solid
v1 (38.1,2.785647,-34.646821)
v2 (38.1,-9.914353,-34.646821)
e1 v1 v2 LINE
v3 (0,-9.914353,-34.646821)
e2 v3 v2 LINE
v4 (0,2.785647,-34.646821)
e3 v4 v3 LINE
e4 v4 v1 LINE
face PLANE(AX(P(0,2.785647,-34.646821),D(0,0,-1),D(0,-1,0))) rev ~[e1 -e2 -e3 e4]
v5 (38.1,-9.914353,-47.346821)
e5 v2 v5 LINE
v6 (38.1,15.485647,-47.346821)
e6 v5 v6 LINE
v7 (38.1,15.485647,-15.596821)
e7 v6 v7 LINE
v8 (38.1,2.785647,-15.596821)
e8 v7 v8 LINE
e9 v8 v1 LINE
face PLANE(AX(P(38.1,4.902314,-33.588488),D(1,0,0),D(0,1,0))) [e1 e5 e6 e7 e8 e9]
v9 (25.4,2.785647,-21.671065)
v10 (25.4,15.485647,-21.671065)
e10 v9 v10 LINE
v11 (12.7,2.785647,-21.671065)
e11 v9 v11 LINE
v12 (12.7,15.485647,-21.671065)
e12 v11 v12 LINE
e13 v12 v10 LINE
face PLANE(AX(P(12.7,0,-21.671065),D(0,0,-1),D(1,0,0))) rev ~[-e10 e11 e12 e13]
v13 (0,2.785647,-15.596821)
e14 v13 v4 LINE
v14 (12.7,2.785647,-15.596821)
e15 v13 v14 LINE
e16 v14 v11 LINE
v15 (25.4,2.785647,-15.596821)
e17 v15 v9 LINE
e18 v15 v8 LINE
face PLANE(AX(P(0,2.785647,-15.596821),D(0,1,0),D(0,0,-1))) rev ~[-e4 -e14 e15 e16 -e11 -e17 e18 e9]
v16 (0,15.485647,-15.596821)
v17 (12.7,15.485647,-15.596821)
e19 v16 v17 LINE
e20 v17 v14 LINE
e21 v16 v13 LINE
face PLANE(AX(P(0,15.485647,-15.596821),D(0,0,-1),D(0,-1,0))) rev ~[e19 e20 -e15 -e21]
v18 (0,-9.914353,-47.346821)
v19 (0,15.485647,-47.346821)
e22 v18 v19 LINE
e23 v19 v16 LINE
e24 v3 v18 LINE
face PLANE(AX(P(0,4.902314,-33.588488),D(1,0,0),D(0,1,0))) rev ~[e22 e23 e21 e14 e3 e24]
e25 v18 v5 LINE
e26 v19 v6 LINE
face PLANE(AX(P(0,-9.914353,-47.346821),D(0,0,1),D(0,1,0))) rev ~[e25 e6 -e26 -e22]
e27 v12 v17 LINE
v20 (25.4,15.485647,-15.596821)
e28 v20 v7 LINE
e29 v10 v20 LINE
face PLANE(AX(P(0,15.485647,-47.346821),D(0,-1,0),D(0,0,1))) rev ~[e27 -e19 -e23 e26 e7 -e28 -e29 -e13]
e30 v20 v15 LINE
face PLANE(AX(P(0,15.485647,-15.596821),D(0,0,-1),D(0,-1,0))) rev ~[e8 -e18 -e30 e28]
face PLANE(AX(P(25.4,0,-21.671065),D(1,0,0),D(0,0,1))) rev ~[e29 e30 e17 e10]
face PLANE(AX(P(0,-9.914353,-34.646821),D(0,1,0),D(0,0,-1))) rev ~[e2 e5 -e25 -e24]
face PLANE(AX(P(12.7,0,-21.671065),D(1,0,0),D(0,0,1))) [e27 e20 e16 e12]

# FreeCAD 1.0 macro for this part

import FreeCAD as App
import Part
import Sketcher

V = App.Vector
Q = App.Units.Quantity


def add_polygon(sketch, points):
    """Adds a closed chain of lines whose ends are joined by coincident constraints."""
    first, n = sketch.GeometryCount, len(points)
    for a, b in zip(points, points[1:] + points[:1]):
        sketch.addGeometry(Part.LineSegment(App.Vector(*a, 0), App.Vector(*b, 0)), False)
    for i in range(n):
        sketch.addConstraint(Sketcher.Constraint("Coincident", first + i, 2, first + (i + 1) % n, 1))

doc = App.newDocument("Part")
params = doc.addObject("Spreadsheet::Sheet", "Params")
for row, (alias, value) in enumerate([
    ("sketch1_width", "1 in"),
    ("sketch1_height", "1.25 in"),
    ("pad1_length", "1.5 in"),
    ("sketch2_width", "0.5 in"),
    ("sketch2_height", "0.25 in"),
], start=1):
    params.set(f"A{row}", alias)
    params.set(f"B{row}", "=" + value)
    params.setAlias(f"B{row}", alias)

body = doc.addObject("PartDesign::Body", "Body")

# Sketch on YZ plane
sketch1 = body.newObject("Sketcher::SketchObject", "Sketch")
sketch1.AttachmentSupport = (doc.getObject("YZ_Plane"), [""])
sketch1.MapMode = "FlatFace"
add_polygon(sketch1, [(15, -47), (15, -16), (3, -16), (3, -35), (-10, -35), (-10, -47)])  # lines 0-5
sketch1.addConstraint([
    Sketcher.Constraint("Vertical", 0),
    Sketcher.Constraint("Horizontal", 1),
    Sketcher.Constraint("Vertical", 2),
    Sketcher.Constraint("Horizontal", 3),
    Sketcher.Constraint("Vertical", 4),
    Sketcher.Constraint("Horizontal", 5),
    Sketcher.Constraint("Equal", 1, 3),
    Sketcher.Constraint("Equal", 3, 4),
    Sketcher.Constraint("DistanceX", 5, 1, 5, 2, Q("1 in")),
    Sketcher.Constraint("DistanceY", 0, 1, 0, 2, Q("1.25 in")),
    Sketcher.Constraint("DistanceY", 0, 2, -1, 1, Q("15.596821 mm")),
    Sketcher.Constraint("DistanceX", -1, 1, 0, 2, Q("15.485647 mm")),
])
sketch1.setExpression("Constraints[14]", "Params.sketch1_width")
sketch1.setExpression("Constraints[15]", "Params.sketch1_height")
pad1 = body.newObject("PartDesign::Pad", "Pad")
pad1.Profile = sketch1
pad1.setExpression("Length", "Params.pad1_length")

# Sketch on XZ plane
sketch2 = body.newObject("Sketcher::SketchObject", "Sketch001")
sketch2.AttachmentSupport = (doc.getObject("XZ_Plane"), [""])
sketch2.MapMode = "FlatFace"
add_polygon(sketch2, [(13, -15), (13, -22), (25, -22), (25, -15)])  # lines 0-3
sketch2.addConstraint([
    Sketcher.Constraint("Vertical", 0),
    Sketcher.Constraint("Horizontal", 1),
    Sketcher.Constraint("Vertical", 2),
    Sketcher.Constraint("Horizontal", 3),
    Sketcher.Constraint("DistanceX", 1, 1, 1, 2, Q("0.5 in")),
    Sketcher.Constraint("DistanceX", -1, 1, 1, 2, Q("1 in")),
    Sketcher.Constraint("DistanceY", 0, 2, 0, 1, Q("0.25 in")),
    Sketcher.Constraint("DistanceY", 0, 2, -1, 1, Q("21.671065 mm")),
])
sketch2.setExpression("Constraints[8]", "Params.sketch2_width")
sketch2.setExpression("Constraints[10]", "Params.sketch2_height")
pocket1 = body.newObject("PartDesign::Pocket", "Pocket")
pocket1.Profile = sketch2
pocket1.Type = "ThroughAll"

doc.recompute()
